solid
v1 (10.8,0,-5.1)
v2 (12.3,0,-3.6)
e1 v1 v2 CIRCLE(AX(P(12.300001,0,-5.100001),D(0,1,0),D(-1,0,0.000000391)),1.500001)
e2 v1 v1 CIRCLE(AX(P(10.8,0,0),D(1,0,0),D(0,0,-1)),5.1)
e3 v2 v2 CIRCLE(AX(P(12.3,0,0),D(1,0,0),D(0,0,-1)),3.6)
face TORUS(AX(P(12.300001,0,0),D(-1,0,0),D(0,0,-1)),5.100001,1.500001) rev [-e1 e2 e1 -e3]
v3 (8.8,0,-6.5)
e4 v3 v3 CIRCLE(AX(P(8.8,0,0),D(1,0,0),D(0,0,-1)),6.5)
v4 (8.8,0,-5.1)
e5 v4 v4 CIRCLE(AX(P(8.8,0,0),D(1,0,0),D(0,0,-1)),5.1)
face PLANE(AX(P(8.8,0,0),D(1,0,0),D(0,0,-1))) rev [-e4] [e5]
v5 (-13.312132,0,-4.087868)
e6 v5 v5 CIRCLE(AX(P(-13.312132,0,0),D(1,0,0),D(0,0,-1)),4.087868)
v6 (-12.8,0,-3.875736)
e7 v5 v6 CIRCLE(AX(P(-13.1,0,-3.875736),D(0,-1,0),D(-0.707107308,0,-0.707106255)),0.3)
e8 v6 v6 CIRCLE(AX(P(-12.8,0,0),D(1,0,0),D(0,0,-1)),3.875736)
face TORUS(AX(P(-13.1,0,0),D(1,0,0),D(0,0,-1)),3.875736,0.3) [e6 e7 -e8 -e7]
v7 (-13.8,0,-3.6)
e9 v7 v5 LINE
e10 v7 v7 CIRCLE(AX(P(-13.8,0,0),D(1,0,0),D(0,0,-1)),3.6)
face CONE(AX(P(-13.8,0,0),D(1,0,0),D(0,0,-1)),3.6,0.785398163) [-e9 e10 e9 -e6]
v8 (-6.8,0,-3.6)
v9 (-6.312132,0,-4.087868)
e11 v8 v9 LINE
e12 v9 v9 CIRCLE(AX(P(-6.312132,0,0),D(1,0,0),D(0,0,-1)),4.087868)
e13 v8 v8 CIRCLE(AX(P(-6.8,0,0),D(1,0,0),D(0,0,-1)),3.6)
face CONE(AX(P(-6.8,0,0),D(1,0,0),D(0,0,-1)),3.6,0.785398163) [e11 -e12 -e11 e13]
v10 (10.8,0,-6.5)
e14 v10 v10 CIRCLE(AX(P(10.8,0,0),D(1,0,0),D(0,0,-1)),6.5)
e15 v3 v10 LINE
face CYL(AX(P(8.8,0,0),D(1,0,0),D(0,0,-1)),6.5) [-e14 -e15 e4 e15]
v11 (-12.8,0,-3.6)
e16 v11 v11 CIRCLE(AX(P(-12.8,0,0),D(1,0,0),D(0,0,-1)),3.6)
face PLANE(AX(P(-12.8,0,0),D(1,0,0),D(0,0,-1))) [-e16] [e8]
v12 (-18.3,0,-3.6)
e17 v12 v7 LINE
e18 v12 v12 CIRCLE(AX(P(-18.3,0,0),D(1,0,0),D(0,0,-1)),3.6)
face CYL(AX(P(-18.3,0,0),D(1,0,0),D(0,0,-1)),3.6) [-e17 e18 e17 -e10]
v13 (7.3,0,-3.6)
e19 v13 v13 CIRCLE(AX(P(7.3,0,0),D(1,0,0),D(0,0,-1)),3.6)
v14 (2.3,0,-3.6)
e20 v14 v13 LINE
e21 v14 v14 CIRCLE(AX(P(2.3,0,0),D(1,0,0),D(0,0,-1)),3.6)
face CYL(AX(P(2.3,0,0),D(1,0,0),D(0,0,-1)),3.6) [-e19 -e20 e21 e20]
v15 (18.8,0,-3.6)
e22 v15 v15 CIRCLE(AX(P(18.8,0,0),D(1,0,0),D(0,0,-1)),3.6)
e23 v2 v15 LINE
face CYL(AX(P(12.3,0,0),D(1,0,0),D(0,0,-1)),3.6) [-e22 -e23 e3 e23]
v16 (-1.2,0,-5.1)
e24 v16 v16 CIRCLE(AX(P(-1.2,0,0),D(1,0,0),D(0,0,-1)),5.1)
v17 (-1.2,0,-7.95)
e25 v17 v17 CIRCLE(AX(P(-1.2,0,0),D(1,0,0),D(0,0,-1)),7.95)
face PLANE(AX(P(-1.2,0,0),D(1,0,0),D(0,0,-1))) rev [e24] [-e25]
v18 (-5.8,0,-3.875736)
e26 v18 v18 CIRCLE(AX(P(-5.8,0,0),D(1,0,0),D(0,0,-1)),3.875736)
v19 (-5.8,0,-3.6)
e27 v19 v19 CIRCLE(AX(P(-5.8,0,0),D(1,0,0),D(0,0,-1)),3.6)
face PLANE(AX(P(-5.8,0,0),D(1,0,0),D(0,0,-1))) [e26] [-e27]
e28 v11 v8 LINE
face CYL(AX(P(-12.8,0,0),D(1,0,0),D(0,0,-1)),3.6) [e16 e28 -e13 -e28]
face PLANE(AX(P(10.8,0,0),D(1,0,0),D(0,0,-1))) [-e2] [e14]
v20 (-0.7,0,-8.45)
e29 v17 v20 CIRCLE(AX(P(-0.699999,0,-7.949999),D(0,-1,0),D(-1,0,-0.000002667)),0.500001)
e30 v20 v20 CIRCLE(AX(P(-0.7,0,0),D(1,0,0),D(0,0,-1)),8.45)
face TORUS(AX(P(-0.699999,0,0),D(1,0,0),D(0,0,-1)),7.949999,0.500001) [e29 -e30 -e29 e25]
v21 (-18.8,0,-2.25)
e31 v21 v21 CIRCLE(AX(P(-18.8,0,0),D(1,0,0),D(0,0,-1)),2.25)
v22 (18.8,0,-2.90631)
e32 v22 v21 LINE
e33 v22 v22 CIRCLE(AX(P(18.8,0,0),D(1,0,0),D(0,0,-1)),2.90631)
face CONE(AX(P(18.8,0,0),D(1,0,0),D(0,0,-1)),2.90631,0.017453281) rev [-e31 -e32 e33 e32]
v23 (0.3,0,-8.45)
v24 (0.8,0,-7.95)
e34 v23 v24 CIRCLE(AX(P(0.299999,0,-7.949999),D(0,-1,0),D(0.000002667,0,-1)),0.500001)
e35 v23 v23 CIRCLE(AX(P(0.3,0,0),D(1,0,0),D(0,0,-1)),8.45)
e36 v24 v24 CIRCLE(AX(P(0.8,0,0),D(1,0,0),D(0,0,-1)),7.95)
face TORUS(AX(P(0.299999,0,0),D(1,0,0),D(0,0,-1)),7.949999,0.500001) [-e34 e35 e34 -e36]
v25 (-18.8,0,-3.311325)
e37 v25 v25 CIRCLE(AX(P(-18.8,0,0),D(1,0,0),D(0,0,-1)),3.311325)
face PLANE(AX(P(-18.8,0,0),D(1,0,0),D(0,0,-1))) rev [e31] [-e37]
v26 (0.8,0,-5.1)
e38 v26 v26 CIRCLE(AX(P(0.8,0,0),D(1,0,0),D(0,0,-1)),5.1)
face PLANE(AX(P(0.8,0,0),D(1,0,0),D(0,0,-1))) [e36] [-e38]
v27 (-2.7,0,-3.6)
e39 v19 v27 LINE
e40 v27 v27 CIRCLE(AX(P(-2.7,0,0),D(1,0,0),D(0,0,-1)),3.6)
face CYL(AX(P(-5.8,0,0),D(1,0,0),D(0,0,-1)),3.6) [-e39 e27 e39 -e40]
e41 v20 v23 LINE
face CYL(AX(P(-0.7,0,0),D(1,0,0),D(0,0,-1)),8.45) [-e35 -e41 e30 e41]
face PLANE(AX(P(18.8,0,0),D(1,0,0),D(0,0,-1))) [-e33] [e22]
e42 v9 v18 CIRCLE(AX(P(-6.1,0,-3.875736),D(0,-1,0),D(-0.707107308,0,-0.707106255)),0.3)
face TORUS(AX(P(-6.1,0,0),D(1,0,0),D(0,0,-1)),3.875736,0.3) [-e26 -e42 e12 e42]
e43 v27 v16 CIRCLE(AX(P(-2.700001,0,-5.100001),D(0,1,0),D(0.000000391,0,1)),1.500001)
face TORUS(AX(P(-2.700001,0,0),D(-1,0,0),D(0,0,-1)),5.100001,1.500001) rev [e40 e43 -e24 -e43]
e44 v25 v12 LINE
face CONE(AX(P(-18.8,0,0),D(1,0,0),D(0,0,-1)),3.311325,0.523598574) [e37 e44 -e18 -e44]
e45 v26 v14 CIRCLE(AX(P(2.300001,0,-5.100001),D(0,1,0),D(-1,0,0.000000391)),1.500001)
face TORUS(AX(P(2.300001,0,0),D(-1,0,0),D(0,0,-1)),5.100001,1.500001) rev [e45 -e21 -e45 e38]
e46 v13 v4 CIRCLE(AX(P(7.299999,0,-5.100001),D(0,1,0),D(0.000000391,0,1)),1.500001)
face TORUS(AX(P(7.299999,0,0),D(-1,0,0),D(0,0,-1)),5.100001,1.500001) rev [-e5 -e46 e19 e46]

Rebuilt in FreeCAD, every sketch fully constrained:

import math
import FreeCAD as App
import Part
import Sketcher
Q = App.Units.Quantity

doc = App.newDocument("Part")
body = doc.addObject("PartDesign::Body", "Body")

# Sketch on XZ plane
sketch1 = body.newObject("Sketcher::SketchObject", "Sketch")
sketch1.AttachmentSupport = (doc.getObject("XZ_Plane"), [""])
sketch1.MapMode = "FlatFace"
sketch1.addGeometry([
    Part.LineSegment(App.Vector(18.8, -2.90631, 0), App.Vector(-18.8, -2.25, 0)),  # 0
    Part.LineSegment(App.Vector(-18.8, -2.25, 0), App.Vector(-18.8, -3.311325, 0)),  # 1
    Part.LineSegment(App.Vector(-18.8, -3.311325, 0), App.Vector(-18.3, -3.6, 0)),  # 2
    Part.LineSegment(App.Vector(-18.3, -3.6, 0), App.Vector(-13.8, -3.6, 0)),  # 3
    Part.LineSegment(App.Vector(-13.8, -3.6, 0), App.Vector(-13.312132, -4.087868, 0)),  # 4
    Part.ArcOfCircle(Part.Circle(App.Vector(-13.1, -3.875736, 0), App.Vector(0, 0, 1), 0.3), math.radians(-135.000043), math.radians(0.000039)),  # 5
    Part.LineSegment(App.Vector(-12.8, -3.875736, 0), App.Vector(-12.8, -3.6, 0)),  # 6
    Part.LineSegment(App.Vector(-12.8, -3.6, 0), App.Vector(-6.8, -3.6, 0)),  # 7
    Part.LineSegment(App.Vector(-6.8, -3.6, 0), App.Vector(-6.312132, -4.087868, 0)),  # 8
    Part.ArcOfCircle(Part.Circle(App.Vector(-6.1, -3.875736, 0), App.Vector(0, 0, 1), 0.3), math.radians(-135.000043), math.radians(0.000039)),  # 9
    Part.LineSegment(App.Vector(-5.8, -3.875736, 0), App.Vector(-5.8, -3.6, 0)),  # 10
    Part.LineSegment(App.Vector(-5.8, -3.6, 0), App.Vector(-2.7, -3.6, 0)),  # 11
    Part.ArcOfCircle(Part.Circle(App.Vector(-2.700001, -5.100001, 0), App.Vector(0, 0, 1), 1.500001), math.radians(0.000022), math.radians(89.999978)),  # 12
    Part.LineSegment(App.Vector(-1.2, -5.1, 0), App.Vector(-1.2, -7.95, 0)),  # 13
    Part.ArcOfCircle(Part.Circle(App.Vector(-0.699999, -7.949999, 0), App.Vector(0, 0, 1), 0.500001), math.radians(-179.999847), math.radians(-90.000153)),  # 14
    Part.LineSegment(App.Vector(-0.7, -8.45, 0), App.Vector(0.3, -8.45, 0)),  # 15
    Part.ArcOfCircle(Part.Circle(App.Vector(0.299999, -7.949999, 0), App.Vector(0, 0, 1), 0.500001), math.radians(-89.999847), math.radians(-0.000153)),  # 16
    Part.LineSegment(App.Vector(0.8, -7.95, 0), App.Vector(0.8, -5.1, 0)),  # 17
    Part.ArcOfCircle(Part.Circle(App.Vector(2.300001, -5.100001, 0), App.Vector(0, 0, 1), 1.500001), math.radians(90.000022), math.radians(179.999978)),  # 18
    Part.LineSegment(App.Vector(2.3, -3.6, 0), App.Vector(7.3, -3.6, 0)),  # 19
    Part.ArcOfCircle(Part.Circle(App.Vector(7.299999, -5.100001, 0), App.Vector(0, 0, 1), 1.500001), math.radians(0.000022), math.radians(89.999978)),  # 20
    Part.LineSegment(App.Vector(8.8, -5.1, 0), App.Vector(8.8, -6.5, 0)),  # 21
    Part.LineSegment(App.Vector(8.8, -6.5, 0), App.Vector(10.8, -6.5, 0)),  # 22
    Part.LineSegment(App.Vector(10.8, -6.5, 0), App.Vector(10.8, -5.1, 0)),  # 23
    Part.ArcOfCircle(Part.Circle(App.Vector(12.300001, -5.100001, 0), App.Vector(0, 0, 1), 1.500001), math.radians(90.000022), math.radians(179.999978)),  # 24
    Part.LineSegment(App.Vector(12.3, -3.6, 0), App.Vector(18.8, -3.6, 0)),  # 25
    Part.LineSegment(App.Vector(18.8, -3.6, 0), App.Vector(18.8, -2.90631, 0)),  # 26
], False)
sketch1.addConstraint([
    Sketcher.Constraint("Coincident", 0, 2, 1, 1),
    Sketcher.Constraint("Coincident", 1, 2, 2, 1),
    Sketcher.Constraint("Coincident", 2, 2, 3, 1),
    Sketcher.Constraint("Coincident", 3, 2, 4, 1),
    Sketcher.Constraint("Tangent", 4, 2, 5, 1),
    Sketcher.Constraint("Tangent", 5, 2, 6, 1),
    Sketcher.Constraint("Coincident", 6, 2, 7, 1),
    Sketcher.Constraint("Coincident", 7, 2, 8, 1),
    Sketcher.Constraint("Tangent", 8, 2, 9, 1),
    Sketcher.Constraint("Tangent", 9, 2, 10, 1),
    Sketcher.Constraint("Coincident", 10, 2, 11, 1),
    Sketcher.Constraint("Tangent", 11, 2, 12, 2),
    Sketcher.Constraint("Tangent", 12, 1, 13, 1),
    Sketcher.Constraint("Coincident", 13, 2, 14, 1),
    Sketcher.Constraint("Coincident", 14, 2, 15, 1),
    Sketcher.Constraint("Coincident", 15, 2, 16, 1),
    Sketcher.Constraint("Coincident", 16, 2, 17, 1),
    Sketcher.Constraint("Tangent", 17, 2, 18, 2),
    Sketcher.Constraint("Tangent", 18, 1, 19, 1),
    Sketcher.Constraint("Tangent", 19, 2, 20, 2),
    Sketcher.Constraint("Tangent", 20, 1, 21, 1),
    Sketcher.Constraint("Coincident", 21, 2, 22, 1),
    Sketcher.Constraint("Coincident", 22, 2, 23, 1),
    Sketcher.Constraint("Tangent", 23, 2, 24, 2),
    Sketcher.Constraint("Tangent", 24, 1, 25, 1),
    Sketcher.Constraint("Coincident", 25, 2, 26, 1),
    Sketcher.Constraint("Coincident", 26, 2, 0, 1),
    Sketcher.Constraint("Vertical", 1),
    Sketcher.Constraint("Horizontal", 3),
    Sketcher.Constraint("Vertical", 6),
    Sketcher.Constraint("Horizontal", 7),
    Sketcher.Constraint("Vertical", 10),
    Sketcher.Constraint("Horizontal", 11),
    Sketcher.Constraint("Vertical", 13),
    Sketcher.Constraint("Horizontal", 15),
    Sketcher.Constraint("Vertical", 17),
    Sketcher.Constraint("Horizontal", 19),
    Sketcher.Constraint("Vertical", 21),
    Sketcher.Constraint("Horizontal", 22),
    Sketcher.Constraint("Vertical", 23),
    Sketcher.Constraint("Horizontal", 25),
    Sketcher.Constraint("Vertical", 26),
    Sketcher.Constraint("Equal", 5, 9),
    Sketcher.Constraint("Equal", 14, 16),
    Sketcher.Constraint("Equal", 12, 18),
    Sketcher.Constraint("Equal", 18, 20),
    Sketcher.Constraint("Equal", 20, 24),
    Sketcher.Constraint("Parallel", 4, 8),
    Sketcher.Constraint("Horizontal", 5, 3, 9, 3),
    Sketcher.Constraint("Horizontal", 12, 3, 18, 3),
    Sketcher.Constraint("Horizontal", 20, 3, 24, 3),
    Sketcher.Constraint("Horizontal", 3, 2, 6, 2),
    Sketcher.Constraint("Horizontal", 7, 2, 10, 2),
    Sketcher.Constraint("Horizontal", 16, 3, 13, 2),
    Sketcher.Constraint("Horizontal", 13, 2, 16, 2),
    Sketcher.Constraint("Vertical", 16, 3, 15, 2),
    Sketcher.Constraint("Radius", 5, Q("0.3 mm")),
    Sketcher.Constraint("Radius", 12, Q("1.500001 mm")),
    Sketcher.Constraint("Radius", 14, Q("0.500001 mm")),
    Sketcher.Constraint("DistanceX", 7, 1, 7, 2, Q("6 mm")),
    Sketcher.Constraint("DistanceX", 15, 1, 15, 2, Q("1 mm")),
    Sketcher.Constraint("DistanceX", 19, 1, 19, 2, Q("5 mm")),
    Sketcher.Constraint("DistanceX", 22, 1, 22, 2, Q("2 mm")),
    Sketcher.Constraint("Angle", 0, Q("179.000001 deg")),
    Sketcher.Constraint("Angle", 2, Q("-29.999988 deg")),
    Sketcher.Constraint("Angle", 4, Q("-45 deg")),
    Sketcher.Constraint("DistanceX", 3, 1, 3, 2, Q("4.5 mm")),
    Sketcher.Constraint("DistanceX", 11, 1, 11, 2, Q("3.1 mm")),
    Sketcher.Constraint("DistanceX", 25, 1, 25, 2, Q("6.5 mm")),
    Sketcher.Constraint("DistanceY", 21, 2, 21, 1, Q("1.4 mm")),
    Sketcher.Constraint("DistanceX", 5, 3, 9, 3, Q("7 mm")),
    Sketcher.Constraint("DistanceX", 12, 3, 16, 3, Q("2.999999 mm")),
    Sketcher.Constraint("DistanceX", 1, 2, 3, 2, Q("5 mm")),
    Sketcher.Constraint("DistanceY", 13, 2, 13, 1, Q("2.85 mm")),
    Sketcher.Constraint("DistanceX", 5, 3, -1, 1, Q("13.1 mm")),
    Sketcher.Constraint("DistanceY", 12, 3, -1, 1, Q("5.100001 mm")),
    Sketcher.Constraint("DistanceY", 14, 3, 0, 2, Q("5.699999 mm")),
])
revolution = body.newObject("PartDesign::Revolution", "Revolution")
revolution.Profile = sketch1
revolution.ReferenceAxis = (sketch1, ["H_Axis"])
revolution.Angle = 360

doc.recompute()
